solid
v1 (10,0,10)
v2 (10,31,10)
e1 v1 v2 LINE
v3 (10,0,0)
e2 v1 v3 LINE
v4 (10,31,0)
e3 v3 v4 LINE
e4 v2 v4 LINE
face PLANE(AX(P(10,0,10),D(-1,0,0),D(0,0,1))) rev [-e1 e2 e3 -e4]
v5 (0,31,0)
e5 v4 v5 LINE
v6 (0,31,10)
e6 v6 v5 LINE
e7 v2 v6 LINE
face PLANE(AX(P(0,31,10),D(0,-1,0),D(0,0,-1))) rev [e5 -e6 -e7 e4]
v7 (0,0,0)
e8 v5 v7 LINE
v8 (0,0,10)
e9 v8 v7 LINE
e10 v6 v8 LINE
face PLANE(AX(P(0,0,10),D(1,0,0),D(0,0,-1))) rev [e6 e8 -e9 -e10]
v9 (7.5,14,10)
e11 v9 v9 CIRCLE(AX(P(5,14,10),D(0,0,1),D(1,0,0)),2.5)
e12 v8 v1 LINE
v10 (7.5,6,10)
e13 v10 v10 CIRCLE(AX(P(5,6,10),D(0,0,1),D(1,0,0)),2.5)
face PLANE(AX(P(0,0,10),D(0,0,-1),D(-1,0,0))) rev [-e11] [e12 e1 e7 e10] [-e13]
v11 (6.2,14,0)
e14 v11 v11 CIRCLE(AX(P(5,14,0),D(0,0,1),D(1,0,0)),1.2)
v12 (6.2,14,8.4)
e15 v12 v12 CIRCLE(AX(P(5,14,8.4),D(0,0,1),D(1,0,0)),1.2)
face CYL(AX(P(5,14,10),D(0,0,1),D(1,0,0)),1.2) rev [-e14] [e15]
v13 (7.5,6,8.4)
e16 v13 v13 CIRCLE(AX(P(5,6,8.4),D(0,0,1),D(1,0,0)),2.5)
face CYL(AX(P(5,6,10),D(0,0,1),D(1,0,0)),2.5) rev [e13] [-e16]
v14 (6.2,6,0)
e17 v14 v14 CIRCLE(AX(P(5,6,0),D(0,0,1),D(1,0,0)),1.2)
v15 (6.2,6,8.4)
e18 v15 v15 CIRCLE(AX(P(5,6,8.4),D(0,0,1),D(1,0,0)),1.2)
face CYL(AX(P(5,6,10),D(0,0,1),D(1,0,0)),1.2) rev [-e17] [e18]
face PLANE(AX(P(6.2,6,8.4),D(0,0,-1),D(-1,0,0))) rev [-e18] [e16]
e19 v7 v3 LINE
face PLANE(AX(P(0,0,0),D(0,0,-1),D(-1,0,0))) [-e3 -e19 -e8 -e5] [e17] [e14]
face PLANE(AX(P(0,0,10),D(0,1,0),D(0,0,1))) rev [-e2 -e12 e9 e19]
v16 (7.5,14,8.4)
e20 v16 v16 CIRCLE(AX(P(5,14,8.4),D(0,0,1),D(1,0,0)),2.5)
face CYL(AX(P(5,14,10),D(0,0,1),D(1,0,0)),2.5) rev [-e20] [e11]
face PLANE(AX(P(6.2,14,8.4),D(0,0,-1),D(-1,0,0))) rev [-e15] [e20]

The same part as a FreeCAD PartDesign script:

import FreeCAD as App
import Part
import Sketcher

V = App.Vector
Q = App.Units.Quantity

doc = App.newDocument("Part")
body = doc.addObject("PartDesign::Body", "Body")

sketch1 = body.newObject("Sketcher::SketchObject", "Sketch")
sketch1.AttachmentSupport = (doc.getObject("XY_Plane"), [""])
sketch1.MapMode = "FlatFace"
sketch1.addGeometry(Part.LineSegment(V(0, 31, 0), V(0, 0, 0)), False)
sketch1.addGeometry(Part.LineSegment(V(0, 0, 0), V(10, 0, 0)), False)
sketch1.addGeometry(Part.LineSegment(V(10, 0, 0), V(10, 31, 0)), False)
sketch1.addGeometry(Part.LineSegment(V(10, 31, 0), V(0, 31, 0)), False)
sketch1.addConstraint(Sketcher.Constraint("Coincident", 0, 2, 1, 1))
sketch1.addConstraint(Sketcher.Constraint("Coincident", 1, 2, 2, 1))
sketch1.addConstraint(Sketcher.Constraint("Coincident", 2, 2, 3, 1))
sketch1.addConstraint(Sketcher.Constraint("Coincident", 3, 2, 0, 1))
sketch1.addConstraint(Sketcher.Constraint("Vertical", 0))
sketch1.addConstraint(Sketcher.Constraint("Horizontal", 1))
sketch1.addConstraint(Sketcher.Constraint("Vertical", 2))
sketch1.addConstraint(Sketcher.Constraint("Horizontal", 3))
sketch1.addConstraint(Sketcher.Constraint("Coincident", 0, 2, -1, 1))
sketch1.addConstraint(Sketcher.Constraint("DistanceX", 1, 1, 1, 2, Q("10 mm")))
sketch1.addConstraint(Sketcher.Constraint("DistanceY", 0, 2, 0, 1, Q("31 mm")))
pad1 = body.newObject("PartDesign::Pad", "Pad")
pad1.Profile = sketch1
pad1.Length = 10

sketch2 = body.newObject("Sketcher::SketchObject", "Sketch001")
sketch2.AttachmentSupport = (doc.getObject("XY_Plane"), [""])
sketch2.MapMode = "FlatFace"
sketch2.AttachmentOffset = App.Placement(V(0, 0, 10), App.Rotation())
sketch2.addGeometry(Part.Circle(V(5, 14, 0), V(0, 0, 1), 1.2), False)
sketch2.addGeometry(Part.Circle(V(5, 6, 0), V(0, 0, 1), 1.2), False)
sketch2.addConstraint(Sketcher.Constraint("Equal", 0, 1))
sketch2.addConstraint(Sketcher.Constraint("Vertical", 0, 3, 1, 3))
sketch2.addConstraint(Sketcher.Constraint("Diameter", 0, Q("2.4 mm")))
sketch2.addConstraint(Sketcher.Constraint("DistanceX", -1, 1, 0, 3, Q("5 mm")))
sketch2.addConstraint(Sketcher.Constraint("DistanceY", -1, 1, 0, 3, Q("14 mm")))
sketch2.addConstraint(Sketcher.Constraint("DistanceY", -1, 1, 1, 3, Q("6 mm")))
doc.recompute()
hole = body.newObject("PartDesign::Hole", "Hole")
hole.Profile = sketch2
hole.ThreadType = "None"
hole.Diameter = 2.4
hole.DepthType = "Dimension"
hole.Depth = 10
hole.DrillPoint = "Angled"
hole.DrillPointAngle = 118
hole.HoleCutType = "Counterbore"
hole.HoleCutDiameter = 5
hole.HoleCutDepth = 1.6

doc.recompute()
